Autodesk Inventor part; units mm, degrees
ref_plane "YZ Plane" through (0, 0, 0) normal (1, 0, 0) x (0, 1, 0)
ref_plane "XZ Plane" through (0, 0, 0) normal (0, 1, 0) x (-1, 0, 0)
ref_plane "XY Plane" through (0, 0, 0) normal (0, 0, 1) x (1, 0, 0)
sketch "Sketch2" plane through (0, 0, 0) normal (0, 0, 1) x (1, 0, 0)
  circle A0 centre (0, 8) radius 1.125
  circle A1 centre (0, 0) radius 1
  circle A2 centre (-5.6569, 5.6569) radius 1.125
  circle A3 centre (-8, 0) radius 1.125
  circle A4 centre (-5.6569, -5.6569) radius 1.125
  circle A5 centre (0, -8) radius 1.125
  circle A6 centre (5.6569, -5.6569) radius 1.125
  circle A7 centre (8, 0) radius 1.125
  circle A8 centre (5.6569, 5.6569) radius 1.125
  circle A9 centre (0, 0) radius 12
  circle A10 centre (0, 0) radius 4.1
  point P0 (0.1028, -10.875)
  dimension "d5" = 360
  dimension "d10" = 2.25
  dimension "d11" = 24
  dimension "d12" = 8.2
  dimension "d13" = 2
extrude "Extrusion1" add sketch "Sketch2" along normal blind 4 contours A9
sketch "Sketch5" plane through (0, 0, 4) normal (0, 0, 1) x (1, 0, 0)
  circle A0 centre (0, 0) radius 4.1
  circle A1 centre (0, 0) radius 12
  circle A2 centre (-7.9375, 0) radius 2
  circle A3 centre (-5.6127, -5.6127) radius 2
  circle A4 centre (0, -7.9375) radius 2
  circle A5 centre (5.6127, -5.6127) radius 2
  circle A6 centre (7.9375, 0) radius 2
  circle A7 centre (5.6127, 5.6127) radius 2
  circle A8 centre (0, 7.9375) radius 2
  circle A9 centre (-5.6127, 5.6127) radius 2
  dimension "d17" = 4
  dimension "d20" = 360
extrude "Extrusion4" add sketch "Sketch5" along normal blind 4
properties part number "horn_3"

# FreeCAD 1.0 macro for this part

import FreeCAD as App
import Part
import Sketcher

doc = App.newDocument("Part")
body = doc.addObject("PartDesign::Body", "Body")

sketch1 = doc.addObject("Sketcher::SketchObject", "Sketch")
body.addObject(sketch1)
sketch1.AttachmentSupport = (doc.XY_Plane, [""])
sketch1.MapMode = "FlatFace"
sketch1.addGeometry(Part.Circle(App.Vector(0, 0, 0), App.Vector(0, 0, 1), 12), False)
sketch1.addGeometry(Part.Circle(App.Vector(-5.6569, -5.6569, 0), App.Vector(0, 0, 1), 1.125), False)
sketch1.addGeometry(Part.Circle(App.Vector(0, -8, 0), App.Vector(0, 0, 1), 1.125), False)
sketch1.addGeometry(Part.Circle(App.Vector(5.6569, -5.6569, 0), App.Vector(0, 0, 1), 1.125), False)
sketch1.addGeometry(Part.Circle(App.Vector(-8, 0, 0), App.Vector(0, 0, 1), 1.125), False)
sketch1.addGeometry(Part.Circle(App.Vector(-5.6569, 5.6569, 0), App.Vector(0, 0, 1), 1.125), False)
sketch1.addGeometry(Part.Circle(App.Vector(0, 0, 0), App.Vector(0, 0, 1), 4.1), False)
sketch1.addGeometry(Part.Circle(App.Vector(5.6569, 5.6569, 0), App.Vector(0, 0, 1), 1.125), False)
sketch1.addGeometry(Part.Circle(App.Vector(8, 0, 0), App.Vector(0, 0, 1), 1.125), False)
sketch1.addGeometry(Part.Circle(App.Vector(0, 8, 0), App.Vector(0, 0, 1), 1.125), False)
sketch1.addConstraint(Sketcher.Constraint("Coincident", 0, 3, -1, 1))
sketch1.addConstraint(Sketcher.Constraint("Coincident", 6, 3, -1, 1))
sketch1.addConstraint(Sketcher.Constraint("Equal", 1, 2))
sketch1.addConstraint(Sketcher.Constraint("Equal", 2, 3))
sketch1.addConstraint(Sketcher.Constraint("Equal", 3, 4))
sketch1.addConstraint(Sketcher.Constraint("Equal", 4, 5))
sketch1.addConstraint(Sketcher.Constraint("Equal", 5, 7))
sketch1.addConstraint(Sketcher.Constraint("Equal", 7, 8))
sketch1.addConstraint(Sketcher.Constraint("Equal", 8, 9))
sketch1.addConstraint(Sketcher.Constraint("Symmetric", 3, 3, 5, 3, -1, 1))
sketch1.addConstraint(Sketcher.Constraint("Symmetric", 1, 3, 7, 3, -1, 1))
sketch1.addConstraint(Sketcher.Constraint("Symmetric", 4, 3, 8, 3, -1, 1))
sketch1.addConstraint(Sketcher.Constraint("Symmetric", 2, 3, 9, 3, -1, 1))
sketch1.addConstraint(Sketcher.Constraint("Symmetric", 1, 3, 3, 3, -2))
sketch1.addConstraint(Sketcher.Constraint("PointOnObject", 2, 3, -2))
sketch1.addConstraint(Sketcher.Constraint("PointOnObject", 4, 3, -1))
sketch1.addConstraint(Sketcher.Constraint("Diameter", 0, 24.0))
sketch1.addConstraint(Sketcher.Constraint("Diameter", 6, 8.2))
sketch1.addConstraint(Sketcher.Constraint("Diameter", 1, 2.25))
sketch1.addConstraint(Sketcher.Constraint("DistanceY", 2, 3, -1, 1, 8.0))
sketch1.addConstraint(Sketcher.Constraint("DistanceX", 4, 3, -1, 1, 8.0))
sketch1.addConstraint(Sketcher.Constraint("DistanceX", 1, 3, -1, 1, 5.657))
sketch1.addConstraint(Sketcher.Constraint("DistanceY", 1, 3, -1, 1, 5.657))
pad1 = doc.addObject("PartDesign::Pad", "Pad")
body.addObject(pad1)
pad1.Profile = sketch1
pad1.Length = 4

sketch2 = doc.addObject("Sketcher::SketchObject", "Sketch001")
body.addObject(sketch2)
sketch2.AttachmentSupport = (doc.XY_Plane, [""])
sketch2.MapMode = "FlatFace"
sketch2.AttachmentOffset = App.Placement(App.Vector(0, 0, 4), App.Rotation())
sketch2.addGeometry(Part.Circle(App.Vector(0, 0, 0), App.Vector(0, 0, 1), 12), False)
sketch2.addGeometry(Part.Circle(App.Vector(-5.6127, -5.6127, 0), App.Vector(0, 0, 1), 2), False)
sketch2.addGeometry(Part.Circle(App.Vector(0, -7.9375, 0), App.Vector(0, 0, 1), 2), False)
sketch2.addGeometry(Part.Circle(App.Vector(5.6127, -5.6127, 0), App.Vector(0, 0, 1), 2), False)
sketch2.addGeometry(Part.Circle(App.Vector(-7.9375, 0, 0), App.Vector(0, 0, 1), 2), False)
sketch2.addGeometry(Part.Circle(App.Vector(-5.6127, 5.6127, 0), App.Vector(0, 0, 1), 2), False)
sketch2.addGeometry(Part.Circle(App.Vector(0, 0, 0), App.Vector(0, 0, 1), 4.1), False)
sketch2.addGeometry(Part.Circle(App.Vector(5.6127, 5.6127, 0), App.Vector(0, 0, 1), 2), False)
sketch2.addGeometry(Part.Circle(App.Vector(7.9375, 0, 0), App.Vector(0, 0, 1), 2), False)
sketch2.addGeometry(Part.Circle(App.Vector(0, 7.9375, 0), App.Vector(0, 0, 1), 2), False)
sketch2.addConstraint(Sketcher.Constraint("Coincident", 0, 3, -1, 1))
sketch2.addConstraint(Sketcher.Constraint("Coincident", 6, 3, -1, 1))
sketch2.addConstraint(Sketcher.Constraint("Equal", 1, 2))
sketch2.addConstraint(Sketcher.Constraint("Equal", 2, 3))
sketch2.addConstraint(Sketcher.Constraint("Equal", 3, 4))
sketch2.addConstraint(Sketcher.Constraint("Equal", 4, 5))
sketch2.addConstraint(Sketcher.Constraint("Equal", 5, 7))
sketch2.addConstraint(Sketcher.Constraint("Equal", 7, 8))
sketch2.addConstraint(Sketcher.Constraint("Equal", 8, 9))
sketch2.addConstraint(Sketcher.Constraint("Symmetric", 3, 3, 5, 3, -1, 1))
sketch2.addConstraint(Sketcher.Constraint("Symmetric", 1, 3, 7, 3, -1, 1))
sketch2.addConstraint(Sketcher.Constraint("Symmetric", 4, 3, 8, 3, -1, 1))
sketch2.addConstraint(Sketcher.Constraint("Symmetric", 2, 3, 9, 3, -1, 1))
sketch2.addConstraint(Sketcher.Constraint("Symmetric", 1, 3, 3, 3, -2))
sketch2.addConstraint(Sketcher.Constraint("PointOnObject", 2, 3, -2))
sketch2.addConstraint(Sketcher.Constraint("PointOnObject", 4, 3, -1))
sketch2.addConstraint(Sketcher.Constraint("Diameter", 1, 4.0))
sketch2.addConstraint(Sketcher.Constraint("Diameter", 0, 24.0))
sketch2.addConstraint(Sketcher.Constraint("Diameter", 6, 8.2))
sketch2.addConstraint(Sketcher.Constraint("DistanceX", 1, 3, -1, 1, 5.6127))
sketch2.addConstraint(Sketcher.Constraint("DistanceY", 1, 3, -1, 1, 5.6127))
sketch2.addConstraint(Sketcher.Constraint("DistanceY", 2, 3, -1, 1, 7.9375))
sketch2.addConstraint(Sketcher.Constraint("DistanceX", 4, 3, -1, 1, 7.9375))
pad2 = doc.addObject("PartDesign::Pad", "Pad001")
body.addObject(pad2)
pad2.Profile = sketch2
pad2.Length = 4

doc.recompute()
